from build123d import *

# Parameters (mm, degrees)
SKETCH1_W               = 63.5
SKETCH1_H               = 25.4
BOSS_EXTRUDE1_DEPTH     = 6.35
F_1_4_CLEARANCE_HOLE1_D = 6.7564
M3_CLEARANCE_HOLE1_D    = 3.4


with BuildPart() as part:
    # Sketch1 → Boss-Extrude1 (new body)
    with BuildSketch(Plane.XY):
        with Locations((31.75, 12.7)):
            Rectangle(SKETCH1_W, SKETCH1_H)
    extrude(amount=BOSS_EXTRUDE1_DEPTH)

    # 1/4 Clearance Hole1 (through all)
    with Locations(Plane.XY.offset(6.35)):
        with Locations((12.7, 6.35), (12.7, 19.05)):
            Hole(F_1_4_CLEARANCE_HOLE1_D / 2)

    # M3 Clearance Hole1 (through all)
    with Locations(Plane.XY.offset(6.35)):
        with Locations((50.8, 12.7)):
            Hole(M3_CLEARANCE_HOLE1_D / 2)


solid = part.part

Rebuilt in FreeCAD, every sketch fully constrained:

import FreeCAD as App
import Part
import Sketcher
from FreeCAD import Vector
Q = App.Units.Quantity

doc = App.newDocument("Part")
body = doc.addObject("PartDesign::Body", "Body")

sketch1 = body.newObject("Sketcher::SketchObject", "Sketch")
sketch1.AttachmentSupport = (doc.getObject("XY_Plane"), [""])
sketch1.MapMode = "FlatFace"
sketch1.addGeometry([
    Part.LineSegment(Vector(0, 25, 0), Vector(0, 0, 0)),
    Part.LineSegment(Vector(0, 0, 0), Vector(64, 0, 0)),
    Part.LineSegment(Vector(64, 0, 0), Vector(64, 25, 0)),
    Part.LineSegment(Vector(64, 25, 0), Vector(0, 25, 0)),
], False)
sketch1.addConstraint([
    Sketcher.Constraint("Coincident", 0, 2, 1, 1),
    Sketcher.Constraint("Coincident", 1, 2, 2, 1),
    Sketcher.Constraint("Coincident", 2, 2, 3, 1),
    Sketcher.Constraint("Coincident", 3, 2, 0, 1),
    Sketcher.Constraint("Vertical", 0),
    Sketcher.Constraint("Horizontal", 1),
    Sketcher.Constraint("Vertical", 2),
    Sketcher.Constraint("Horizontal", 3),
    Sketcher.Constraint("Coincident", 0, 2, -1, 1),
    Sketcher.Constraint("DistanceY", 0, 2, 0, 1, Q("1 in")),
    Sketcher.Constraint("DistanceX", 1, 1, 1, 2, Q("2.5 in")),
])
pad1 = body.newObject("PartDesign::Pad", "Pad")
pad1.Profile = sketch1
pad1.Length = Q("0.25 in")

sketch2 = body.newObject("Sketcher::SketchObject", "Sketch001")
sketch2.AttachmentSupport = (doc.getObject("XY_Plane"), [""])
sketch2.MapMode = "FlatFace"
sketch2.AttachmentOffset = App.Placement(Vector(0, 0, 0.25 * 25.4), App.Rotation())
sketch2.addGeometry([
    Part.Circle(Vector(12.7, 6.3, 0), Vector(0, 0, 1), 3.4),
    Part.Circle(Vector(12.7, 19.1, 0), Vector(0, 0, 1), 3.4),
], False)
sketch2.addConstraint([
    Sketcher.Constraint("Equal", 0, 1),
    Sketcher.Constraint("Vertical", 0, 3, 1, 3),
    Sketcher.Constraint("Diameter", 0, Q("0.266 in")),
    Sketcher.Constraint("DistanceX", -1, 1, 0, 3, Q("0.5 in")),
    Sketcher.Constraint("DistanceY", 0, 3, 1, 3, Q("0.5 in")),
    Sketcher.Constraint("DistanceY", -1, 1, 0, 3, Q("0.25 in")),
])
doc.recompute()
hole = body.newObject("PartDesign::Hole", "Hole")
hole.Profile = sketch2
hole.ThreadType = "None"
hole.Diameter = Q("0.266 in")
hole.DepthType = "ThroughAll"

sketch3 = body.newObject("Sketcher::SketchObject", "Sketch002")
sketch3.AttachmentSupport = (doc.getObject("XY_Plane"), [""])
sketch3.MapMode = "FlatFace"
sketch3.AttachmentOffset = App.Placement(Vector(0, 0, 0.25 * 25.4), App.Rotation())
sketch3.addGeometry(Part.Circle(Vector(50.8, 12.7, 0), Vector(0, 0, 1), 1.7), False)
sketch3.addConstraint([
    Sketcher.Constraint("DistanceX", -1, 1, 0, 3, Q("2 in")),
    Sketcher.Constraint("DistanceY", -1, 1, 0, 3, Q("0.5 in")),
    Sketcher.Constraint("Diameter", 0, Q("3.4 mm")),
])
doc.recompute()
hole2 = body.newObject("PartDesign::Hole", "Hole001")
hole2.Profile = sketch3
hole2.ThreadType = "None"
hole2.Diameter = 3.4
hole2.DepthType = "ThroughAll"

doc.recompute()
